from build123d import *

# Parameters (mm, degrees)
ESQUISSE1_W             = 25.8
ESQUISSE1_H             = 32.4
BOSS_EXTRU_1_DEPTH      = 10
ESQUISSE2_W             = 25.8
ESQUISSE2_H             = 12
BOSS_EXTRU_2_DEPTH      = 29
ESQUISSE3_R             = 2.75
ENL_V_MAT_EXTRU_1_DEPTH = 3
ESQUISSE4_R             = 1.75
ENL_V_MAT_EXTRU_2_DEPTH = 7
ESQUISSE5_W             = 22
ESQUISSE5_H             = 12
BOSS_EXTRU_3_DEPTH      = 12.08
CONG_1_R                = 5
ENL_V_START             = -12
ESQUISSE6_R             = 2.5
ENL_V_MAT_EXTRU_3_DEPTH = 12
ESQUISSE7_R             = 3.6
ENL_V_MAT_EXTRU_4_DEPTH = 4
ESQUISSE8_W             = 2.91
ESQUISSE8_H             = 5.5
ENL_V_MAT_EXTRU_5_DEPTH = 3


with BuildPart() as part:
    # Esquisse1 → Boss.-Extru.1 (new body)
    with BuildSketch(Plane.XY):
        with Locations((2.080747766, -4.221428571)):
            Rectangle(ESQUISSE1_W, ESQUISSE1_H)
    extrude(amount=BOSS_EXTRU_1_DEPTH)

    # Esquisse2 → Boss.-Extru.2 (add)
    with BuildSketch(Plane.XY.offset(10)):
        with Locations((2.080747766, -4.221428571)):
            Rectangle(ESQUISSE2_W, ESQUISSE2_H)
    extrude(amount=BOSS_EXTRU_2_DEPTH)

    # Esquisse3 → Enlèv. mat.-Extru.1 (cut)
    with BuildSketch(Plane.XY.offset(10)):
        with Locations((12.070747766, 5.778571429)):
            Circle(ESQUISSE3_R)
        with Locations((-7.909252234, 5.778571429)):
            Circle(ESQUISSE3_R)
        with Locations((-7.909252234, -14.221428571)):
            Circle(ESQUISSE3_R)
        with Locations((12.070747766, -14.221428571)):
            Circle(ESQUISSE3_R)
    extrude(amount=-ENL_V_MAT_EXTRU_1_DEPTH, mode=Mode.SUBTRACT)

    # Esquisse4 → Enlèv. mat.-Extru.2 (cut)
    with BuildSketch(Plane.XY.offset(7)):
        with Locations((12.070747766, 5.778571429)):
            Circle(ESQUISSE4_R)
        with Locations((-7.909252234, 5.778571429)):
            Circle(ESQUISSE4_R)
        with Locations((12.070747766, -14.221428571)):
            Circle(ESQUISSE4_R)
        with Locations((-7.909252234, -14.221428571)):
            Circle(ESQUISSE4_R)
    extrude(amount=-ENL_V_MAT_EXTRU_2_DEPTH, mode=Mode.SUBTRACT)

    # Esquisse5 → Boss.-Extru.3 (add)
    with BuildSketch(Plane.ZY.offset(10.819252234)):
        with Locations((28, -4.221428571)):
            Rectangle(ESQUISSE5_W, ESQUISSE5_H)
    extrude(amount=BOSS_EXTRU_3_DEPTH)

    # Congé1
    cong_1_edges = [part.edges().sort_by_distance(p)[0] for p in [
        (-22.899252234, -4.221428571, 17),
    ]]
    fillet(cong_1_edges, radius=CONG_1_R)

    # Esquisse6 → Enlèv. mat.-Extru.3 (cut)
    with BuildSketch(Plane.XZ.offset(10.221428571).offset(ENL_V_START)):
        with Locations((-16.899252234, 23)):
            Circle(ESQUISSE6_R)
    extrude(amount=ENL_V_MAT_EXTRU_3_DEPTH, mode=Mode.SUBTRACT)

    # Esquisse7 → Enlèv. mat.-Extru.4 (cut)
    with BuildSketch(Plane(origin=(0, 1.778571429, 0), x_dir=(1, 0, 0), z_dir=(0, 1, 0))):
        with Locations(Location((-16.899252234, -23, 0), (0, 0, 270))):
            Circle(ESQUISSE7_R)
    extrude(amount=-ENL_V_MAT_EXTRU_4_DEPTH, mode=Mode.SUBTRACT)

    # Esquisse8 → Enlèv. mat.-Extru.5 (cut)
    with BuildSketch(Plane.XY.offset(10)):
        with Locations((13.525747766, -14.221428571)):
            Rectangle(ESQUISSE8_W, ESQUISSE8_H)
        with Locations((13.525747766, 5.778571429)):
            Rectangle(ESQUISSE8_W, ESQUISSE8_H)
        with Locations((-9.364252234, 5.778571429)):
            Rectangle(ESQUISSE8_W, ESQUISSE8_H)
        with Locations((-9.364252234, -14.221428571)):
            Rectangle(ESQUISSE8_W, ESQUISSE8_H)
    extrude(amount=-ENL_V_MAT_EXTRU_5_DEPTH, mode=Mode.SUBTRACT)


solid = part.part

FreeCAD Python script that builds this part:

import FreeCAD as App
import Part
import Sketcher


def edges_at(feature, points):
    """Names of the edges that pass closest to the given points."""
    edges = feature.Shape.Edges
    near = lambda p: min(range(len(edges)), key=lambda i: edges[i].distToShape(Part.Vertex(*p))[0])
    return sorted({f"Edge{near(p) + 1}" for p in points})

doc = App.newDocument("Part")
params = doc.addObject("Spreadsheet::Sheet", "Params")
for row, (alias, value) in enumerate([
    ("sketch1_width", "25.8 mm"),
    ("sketch1_height", "32.4 mm"),
    ("pad1_length", "10 mm"),
    ("sketch2_height", "12 mm"),
    ("sketch2_width", "25.8 mm"),
    ("pad2_length", "29 mm"),
    ("sketch3_diameter", "5.5 mm"),
    ("pocket1_length", "3 mm"),
    ("sketch4_diameter", "3.5 mm"),
    ("pocket2_length", "7 mm"),
    ("sketch5_width", "12 mm"),
    ("sketch5_height", "22 mm"),
    ("pad3_length", "12.08 mm"),
    ("fillet_radius", "5 mm"),
    ("sketch6_diameter", "5 mm"),
    ("pocket3_length", "12 mm"),
    ("sketch7_diameter", "7.2 mm"),
    ("pocket4_length", "4 mm"),
    ("sketch8_height", "5.5 mm"),
    ("sketch8_width", "2.91 mm"),
    ("pocket5_length", "3 mm"),
], start=1):
    params.set(f"A{row}", alias)
    params.set(f"B{row}", "=" + value)
    params.setAlias(f"B{row}", alias)

body = doc.addObject("PartDesign::Body", "Body")

# Sketch on XY plane
sketch1 = doc.addObject("Sketcher::SketchObject", "Sketch")
body.addObject(sketch1)
sketch1.AttachmentSupport = (doc.XY_Plane, [""])
sketch1.MapMode = "FlatFace"
sketch1.addGeometry(Part.LineSegment(App.Vector(-11, 12, 0), App.Vector(-11, -20, 0)), False)
sketch1.addGeometry(Part.LineSegment(App.Vector(-11, -20, 0), App.Vector(15, -20, 0)), False)
sketch1.addGeometry(Part.LineSegment(App.Vector(15, -20, 0), App.Vector(15, 12, 0)), False)
sketch1.addGeometry(Part.LineSegment(App.Vector(15, 12, 0), App.Vector(-11, 12, 0)), False)
sketch1.addConstraint(Sketcher.Constraint("Coincident", 0, 2, 1, 1))
sketch1.addConstraint(Sketcher.Constraint("Coincident", 1, 2, 2, 1))
sketch1.addConstraint(Sketcher.Constraint("Coincident", 2, 2, 3, 1))
sketch1.addConstraint(Sketcher.Constraint("Coincident", 3, 2, 0, 1))
sketch1.addConstraint(Sketcher.Constraint("Vertical", 0))
sketch1.addConstraint(Sketcher.Constraint("Horizontal", 1))
sketch1.addConstraint(Sketcher.Constraint("Vertical", 2))
sketch1.addConstraint(Sketcher.Constraint("Horizontal", 3))
sketch1.addConstraint(Sketcher.Constraint("DistanceX", 1, 1, 1, 2, 25.8))
sketch1.addConstraint(Sketcher.Constraint("DistanceY", 0, 2, 0, 1, 32.4))
sketch1.addConstraint(Sketcher.Constraint("DistanceY", 0, 2, -1, 1, 20.421429))
sketch1.addConstraint(Sketcher.Constraint("DistanceX", 0, 2, -1, 1, 10.819252))
sketch1.setExpression("Constraints[8]", "Params.sketch1_width")
sketch1.setExpression("Constraints[9]", "Params.sketch1_height")
pad1 = doc.addObject("PartDesign::Pad", "Pad")
body.addObject(pad1)
pad1.Profile = sketch1
pad1.setExpression("Length", "Params.pad1_length")

# Sketch on XY plane
sketch2 = doc.addObject("Sketcher::SketchObject", "Sketch001")
body.addObject(sketch2)
sketch2.AttachmentSupport = (doc.XY_Plane, [""])
sketch2.MapMode = "FlatFace"
sketch2.AttachmentOffset = App.Placement(App.Vector(0, 0, 10), App.Rotation())
sketch2.addGeometry(Part.LineSegment(App.Vector(-11, 2, 0), App.Vector(-11, -10, 0)), False)
sketch2.addGeometry(Part.LineSegment(App.Vector(-11, -10, 0), App.Vector(15, -10, 0)), False)
sketch2.addGeometry(Part.LineSegment(App.Vector(15, -10, 0), App.Vector(15, 2, 0)), False)
sketch2.addGeometry(Part.LineSegment(App.Vector(15, 2, 0), App.Vector(-11, 2, 0)), False)
sketch2.addConstraint(Sketcher.Constraint("Coincident", 0, 2, 1, 1))
sketch2.addConstraint(Sketcher.Constraint("Coincident", 1, 2, 2, 1))
sketch2.addConstraint(Sketcher.Constraint("Coincident", 2, 2, 3, 1))
sketch2.addConstraint(Sketcher.Constraint("Coincident", 3, 2, 0, 1))
sketch2.addConstraint(Sketcher.Constraint("Vertical", 0))
sketch2.addConstraint(Sketcher.Constraint("Horizontal", 1))
sketch2.addConstraint(Sketcher.Constraint("Vertical", 2))
sketch2.addConstraint(Sketcher.Constraint("Horizontal", 3))
sketch2.addConstraint(Sketcher.Constraint("DistanceY", 0, 2, 0, 1, 12.0))
sketch2.addConstraint(Sketcher.Constraint("DistanceX", 1, 1, 1, 2, 25.8))
sketch2.addConstraint(Sketcher.Constraint("DistanceY", 0, 2, -1, 1, 10.221429))
sketch2.addConstraint(Sketcher.Constraint("DistanceX", 0, 2, -1, 1, 10.819252))
sketch2.setExpression("Constraints[8]", "Params.sketch2_height")
sketch2.setExpression("Constraints[9]", "Params.sketch2_width")
pad2 = doc.addObject("PartDesign::Pad", "Pad001")
body.addObject(pad2)
pad2.Profile = sketch2
pad2.setExpression("Length", "Params.pad2_length")

# Sketch on XY plane
sketch3 = doc.addObject("Sketcher::SketchObject", "Sketch002")
body.addObject(sketch3)
sketch3.AttachmentSupport = (doc.XY_Plane, [""])
sketch3.MapMode = "FlatFace"
sketch3.AttachmentOffset = App.Placement(App.Vector(0, 0, 10), App.Rotation())
sketch3.addGeometry(Part.Circle(App.Vector(12.1, 5.8, 0), App.Vector(0, 0, 1), 2.8), False)
sketch3.addGeometry(Part.Circle(App.Vector(-7.9, 5.8, 0), App.Vector(0, 0, 1), 2.8), False)
sketch3.addGeometry(Part.Circle(App.Vector(-7.9, -14.2, 0), App.Vector(0, 0, 1), 2.8), False)
sketch3.addGeometry(Part.Circle(App.Vector(12.1, -14.2, 0), App.Vector(0, 0, 1), 2.8), False)
sketch3.addConstraint(Sketcher.Constraint("Equal", 0, 1))
sketch3.addConstraint(Sketcher.Constraint("Equal", 1, 2))
sketch3.addConstraint(Sketcher.Constraint("Equal", 2, 3))
sketch3.addConstraint(Sketcher.Constraint("Horizontal", 0, 3, 1, 3))
sketch3.addConstraint(Sketcher.Constraint("Horizontal", 2, 3, 3, 3))
sketch3.addConstraint(Sketcher.Constraint("Vertical", 1, 3, 2, 3))
sketch3.addConstraint(Sketcher.Constraint("Vertical", 0, 3, 3, 3))
sketch3.addConstraint(Sketcher.Constraint("Diameter", 0, 5.5))
sketch3.addConstraint(Sketcher.Constraint("DistanceY", 2, 3, 1, 3, 20.0))
sketch3.addConstraint(Sketcher.Constraint("DistanceX", 1, 3, 0, 3, 19.98))
sketch3.addConstraint(Sketcher.Constraint("DistanceY", -1, 1, 0, 3, 5.778571))
sketch3.addConstraint(Sketcher.Constraint("DistanceX", -1, 1, 0, 3, 12.070748))
sketch3.setExpression("Constraints[7]", "Params.sketch3_diameter")
pocket1 = doc.addObject("PartDesign::Pocket", "Pocket")
body.addObject(pocket1)
pocket1.Profile = sketch3
pocket1.setExpression("Length", "Params.pocket1_length")

# Sketch on XY plane
sketch4 = doc.addObject("Sketcher::SketchObject", "Sketch003")
body.addObject(sketch4)
sketch4.AttachmentSupport = (doc.XY_Plane, [""])
sketch4.MapMode = "FlatFace"
sketch4.AttachmentOffset = App.Placement(App.Vector(0, 0, 7), App.Rotation())
sketch4.addGeometry(Part.Circle(App.Vector(12.1, 5.8, 0), App.Vector(0, 0, 1), 1.8), False)
sketch4.addGeometry(Part.Circle(App.Vector(-7.9, 5.8, 0), App.Vector(0, 0, 1), 1.8), False)
sketch4.addGeometry(Part.Circle(App.Vector(12.1, -14.2, 0), App.Vector(0, 0, 1), 1.8), False)
sketch4.addGeometry(Part.Circle(App.Vector(-7.9, -14.2, 0), App.Vector(0, 0, 1), 1.8), False)
sketch4.addConstraint(Sketcher.Constraint("Equal", 0, 1))
sketch4.addConstraint(Sketcher.Constraint("Equal", 1, 2))
sketch4.addConstraint(Sketcher.Constraint("Equal", 2, 3))
sketch4.addConstraint(Sketcher.Constraint("Horizontal", 0, 3, 1, 3))
sketch4.addConstraint(Sketcher.Constraint("Horizontal", 2, 3, 3, 3))
sketch4.addConstraint(Sketcher.Constraint("Vertical", 0, 3, 2, 3))
sketch4.addConstraint(Sketcher.Constraint("Vertical", 1, 3, 3, 3))
sketch4.addConstraint(Sketcher.Constraint("Diameter", 0, 3.5))
sketch4.addConstraint(Sketcher.Constraint("DistanceY", 2, 3, 0, 3, 20.0))
sketch4.addConstraint(Sketcher.Constraint("DistanceX", 1, 3, 0, 3, 19.98))
sketch4.addConstraint(Sketcher.Constraint("DistanceY", -1, 1, 0, 3, 5.778571))
sketch4.addConstraint(Sketcher.Constraint("DistanceX", -1, 1, 0, 3, 12.070748))
sketch4.setExpression("Constraints[7]", "Params.sketch4_diameter")
pocket2 = doc.addObject("PartDesign::Pocket", "Pocket001")
body.addObject(pocket2)
pocket2.Profile = sketch4
pocket2.setExpression("Length", "Params.pocket2_length")

# Sketch on YZ plane
sketch5 = doc.addObject("Sketcher::SketchObject", "Sketch004")
body.addObject(sketch5)
sketch5.AttachmentSupport = (doc.YZ_Plane, [""])
sketch5.MapMode = "FlatFace"
sketch5.AttachmentOffset = App.Placement(App.Vector(0, 0, -10.819252), App.Rotation())
sketch5.addGeometry(Part.LineSegment(App.Vector(2, 17, 0), App.Vector(-10, 17, 0)), False)
sketch5.addGeometry(Part.LineSegment(App.Vector(-10, 17, 0), App.Vector(-10, 39, 0)), False)
sketch5.addGeometry(Part.LineSegment(App.Vector(-10, 39, 0), App.Vector(2, 39, 0)), False)
sketch5.addGeometry(Part.LineSegment(App.Vector(2, 39, 0), App.Vector(2, 17, 0)), False)
sketch5.addConstraint(Sketcher.Constraint("Coincident", 0, 2, 1, 1))
sketch5.addConstraint(Sketcher.Constraint("Coincident", 1, 2, 2, 1))
sketch5.addConstraint(Sketcher.Constraint("Coincident", 2, 2, 3, 1))
sketch5.addConstraint(Sketcher.Constraint("Coincident", 3, 2, 0, 1))
sketch5.addConstraint(Sketcher.Constraint("Horizontal", 0))
sketch5.addConstraint(Sketcher.Constraint("Vertical", 1))
sketch5.addConstraint(Sketcher.Constraint("Horizontal", 2))
sketch5.addConstraint(Sketcher.Constraint("Vertical", 3))
sketch5.addConstraint(Sketcher.Constraint("DistanceX", 0, 2, 0, 1, 12.0))
sketch5.addConstraint(Sketcher.Constraint("DistanceY", 1, 1, 1, 2, 22.0))
sketch5.addConstraint(Sketcher.Constraint("DistanceY", -1, 1, 0, 2, 17.0))
sketch5.addConstraint(Sketcher.Constraint("DistanceX", 0, 2, -1, 1, 10.221429))
sketch5.setExpression("Constraints[8]", "Params.sketch5_width")
sketch5.setExpression("Constraints[9]", "Params.sketch5_height")
pad3 = doc.addObject("PartDesign::Pad", "Pad002")
body.addObject(pad3)
pad3.Profile = sketch5
pad3.setExpression("Length", "Params.pad3_length")
pad3.Reversed = True
doc.recompute()

fillet = doc.addObject("PartDesign::Fillet", "Fillet")
body.addObject(fillet)
fillet.Base = (pad3, edges_at(pad3, [(-22.899, -4.221, 17)]))
fillet.setExpression("Radius", "Params.fillet_radius")

# Sketch on XZ plane
sketch6 = doc.addObject("Sketcher::SketchObject", "Sketch005")
body.addObject(sketch6)
sketch6.AttachmentSupport = (doc.XZ_Plane, [""])
sketch6.MapMode = "FlatFace"
sketch6.AttachmentOffset = App.Placement(App.Vector(0, 0, -1.778571), App.Rotation())
sketch6.addGeometry(Part.Circle(App.Vector(-16.9, 23, 0), App.Vector(0, 0, 1), 2.5), False)
sketch6.addConstraint(Sketcher.Constraint("Diameter", 0, 5.0))
sketch6.addConstraint(Sketcher.Constraint("DistanceY", -1, 1, 0, 3, 23.0))
sketch6.addConstraint(Sketcher.Constraint("DistanceX", 0, 3, -1, 1, 16.899252))
sketch6.setExpression("Constraints[0]", "Params.sketch6_diameter")
pocket3 = doc.addObject("PartDesign::Pocket", "Pocket002")
body.addObject(pocket3)
pocket3.Profile = sketch6
pocket3.setExpression("Length", "Params.pocket3_length")
pocket3.Reversed = True

# Sketch on XZ plane
sketch7 = doc.addObject("Sketcher::SketchObject", "Sketch006")
body.addObject(sketch7)
sketch7.AttachmentSupport = (doc.XZ_Plane, [""])
sketch7.MapMode = "FlatFace"
sketch7.AttachmentOffset = App.Placement(App.Vector(0, 0, -1.778571), App.Rotation())
sketch7.addGeometry(Part.Circle(App.Vector(-16.9, 23, 0), App.Vector(0, 0, 1), 3.6), False)
sketch7.addConstraint(Sketcher.Constraint("Diameter", 0, 7.2))
sketch7.addConstraint(Sketcher.Constraint("DistanceY", -1, 1, 0, 3, 23.0))
sketch7.addConstraint(Sketcher.Constraint("DistanceX", 0, 3, -1, 1, 16.899252))
sketch7.setExpression("Constraints[0]", "Params.sketch7_diameter")
pocket4 = doc.addObject("PartDesign::Pocket", "Pocket003")
body.addObject(pocket4)
pocket4.Profile = sketch7
pocket4.setExpression("Length", "Params.pocket4_length")
pocket4.Reversed = True

# Sketch on XY plane
sketch8 = doc.addObject("Sketcher::SketchObject", "Sketch007")
body.addObject(sketch8)
sketch8.AttachmentSupport = (doc.XY_Plane, [""])
sketch8.MapMode = "FlatFace"
sketch8.AttachmentOffset = App.Placement(App.Vector(0, 0, 10), App.Rotation())
sketch8.addGeometry(Part.LineSegment(App.Vector(12.1, -11.5, 0), App.Vector(12.1, -17, 0)), False)
sketch8.addGeometry(Part.LineSegment(App.Vector(12.1, -17, 0), App.Vector(15, -17, 0)), False)
sketch8.addGeometry(Part.LineSegment(App.Vector(15, -17, 0), App.Vector(15, -11.5, 0)), False)
sketch8.addGeometry(Part.LineSegment(App.Vector(15, -11.5, 0), App.Vector(12.1, -11.5, 0)), False)
sketch8.addGeometry(Part.LineSegment(App.Vector(12.1, 8.5, 0), App.Vector(12.1, 3, 0)), False)
sketch8.addGeometry(Part.LineSegment(App.Vector(12.1, 3, 0), App.Vector(15, 3, 0)), False)
sketch8.addGeometry(Part.LineSegment(App.Vector(15, 3, 0), App.Vector(15, 8.5, 0)), False)
sketch8.addGeometry(Part.LineSegment(App.Vector(15, 8.5, 0), App.Vector(12.1, 8.5, 0)), False)
sketch8.addGeometry(Part.LineSegment(App.Vector(-10.8, 8.5, 0), App.Vector(-10.8, 3, 0)), False)
sketch8.addGeometry(Part.LineSegment(App.Vector(-10.8, 3, 0), App.Vector(-7.9, 3, 0)), False)
sketch8.addGeometry(Part.LineSegment(App.Vector(-7.9, 3, 0), App.Vector(-7.9, 8.5, 0)), False)
sketch8.addGeometry(Part.LineSegment(App.Vector(-7.9, 8.5, 0), App.Vector(-10.8, 8.5, 0)), False)
sketch8.addGeometry(Part.LineSegment(App.Vector(-10.8, -11.5, 0), App.Vector(-10.8, -17, 0)), False)
sketch8.addGeometry(Part.LineSegment(App.Vector(-10.8, -17, 0), App.Vector(-7.9, -17, 0)), False)
sketch8.addGeometry(Part.LineSegment(App.Vector(-7.9, -17, 0), App.Vector(-7.9, -11.5, 0)), False)
sketch8.addGeometry(Part.LineSegment(App.Vector(-7.9, -11.5, 0), App.Vector(-10.8, -11.5, 0)), False)
sketch8.addConstraint(Sketcher.Constraint("Coincident", 0, 2, 1, 1))
sketch8.addConstraint(Sketcher.Constraint("Coincident", 1, 2, 2, 1))
sketch8.addConstraint(Sketcher.Constraint("Coincident", 2, 2, 3, 1))
sketch8.addConstraint(Sketcher.Constraint("Coincident", 3, 2, 0, 1))
sketch8.addConstraint(Sketcher.Constraint("Coincident", 4, 2, 5, 1))
sketch8.addConstraint(Sketcher.Constraint("Coincident", 5, 2, 6, 1))
sketch8.addConstraint(Sketcher.Constraint("Coincident", 6, 2, 7, 1))
sketch8.addConstraint(Sketcher.Constraint("Coincident", 7, 2, 4, 1))
sketch8.addConstraint(Sketcher.Constraint("Coincident", 8, 2, 9, 1))
sketch8.addConstraint(Sketcher.Constraint("Coincident", 9, 2, 10, 1))
sketch8.addConstraint(Sketcher.Constraint("Coincident", 10, 2, 11, 1))
sketch8.addConstraint(Sketcher.Constraint("Coincident", 11, 2, 8, 1))
sketch8.addConstraint(Sketcher.Constraint("Coincident", 12, 2, 13, 1))
sketch8.addConstraint(Sketcher.Constraint("Coincident", 13, 2, 14, 1))
sketch8.addConstraint(Sketcher.Constraint("Coincident", 14, 2, 15, 1))
sketch8.addConstraint(Sketcher.Constraint("Coincident", 15, 2, 12, 1))
sketch8.addConstraint(Sketcher.Constraint("Vertical", 0))
sketch8.addConstraint(Sketcher.Constraint("Horizontal", 1))
sketch8.addConstraint(Sketcher.Constraint("Vertical", 2))
sketch8.addConstraint(Sketcher.Constraint("Horizontal", 3))
sketch8.addConstraint(Sketcher.Constraint("Vertical", 4))
sketch8.addConstraint(Sketcher.Constraint("Horizontal", 5))
sketch8.addConstraint(Sketcher.Constraint("Vertical", 6))
sketch8.addConstraint(Sketcher.Constraint("Horizontal", 7))
sketch8.addConstraint(Sketcher.Constraint("Vertical", 8))
sketch8.addConstraint(Sketcher.Constraint("Horizontal", 9))
sketch8.addConstraint(Sketcher.Constraint("Vertical", 10))
sketch8.addConstraint(Sketcher.Constraint("Horizontal", 11))
sketch8.addConstraint(Sketcher.Constraint("Vertical", 12))
sketch8.addConstraint(Sketcher.Constraint("Horizontal", 13))
sketch8.addConstraint(Sketcher.Constraint("Vertical", 14))
sketch8.addConstraint(Sketcher.Constraint("Horizontal", 15))
sketch8.addConstraint(Sketcher.Constraint("Horizontal", 5, 2, 8, 2))
sketch8.addConstraint(Sketcher.Constraint("Horizontal", 7, 2, 10, 2))
sketch8.addConstraint(Sketcher.Constraint("Horizontal", 1, 2, 12, 2))
sketch8.addConstraint(Sketcher.Constraint("Horizontal", 3, 2, 14, 2))
sketch8.addConstraint(Sketcher.Constraint("Vertical", 3, 2, 4, 2))
sketch8.addConstraint(Sketcher.Constraint("Vertical", 2, 2, 5, 2))
sketch8.addConstraint(Sketcher.Constraint("Vertical", 11, 2, 12, 2))
sketch8.addConstraint(Sketcher.Constraint("Vertical", 10, 2, 13, 2))
sketch8.addConstraint(Sketcher.Constraint("Equal", 7, 9))
sketch8.addConstraint(Sketcher.Constraint("Equal", 2, 4))
sketch8.addConstraint(Sketcher.Constraint("DistanceY", 0, 2, 0, 1, 5.5))
sketch8.addConstraint(Sketcher.Constraint("DistanceY", 0, 2, 4, 2, 20.0))
sketch8.addConstraint(Sketcher.Constraint("DistanceX", 1, 1, 1, 2, 2.91))
sketch8.addConstraint(Sketcher.Constraint("DistanceX", 8, 2, 5, 2, 25.8))
sketch8.addConstraint(Sketcher.Constraint("DistanceY", 0, 2, -1, 1, 16.971429))
sketch8.addConstraint(Sketcher.Constraint("DistanceX", -1, 1, 0, 2, 12.070748))
sketch8.setExpression("Constraints[42]", "Params.sketch8_height")
sketch8.setExpression("Constraints[44]", "Params.sketch8_width")
pocket5 = doc.addObject("PartDesign::Pocket", "Pocket004")
body.addObject(pocket5)
pocket5.Profile = sketch8
pocket5.setExpression("Length", "Params.pocket5_length")

doc.recompute()
